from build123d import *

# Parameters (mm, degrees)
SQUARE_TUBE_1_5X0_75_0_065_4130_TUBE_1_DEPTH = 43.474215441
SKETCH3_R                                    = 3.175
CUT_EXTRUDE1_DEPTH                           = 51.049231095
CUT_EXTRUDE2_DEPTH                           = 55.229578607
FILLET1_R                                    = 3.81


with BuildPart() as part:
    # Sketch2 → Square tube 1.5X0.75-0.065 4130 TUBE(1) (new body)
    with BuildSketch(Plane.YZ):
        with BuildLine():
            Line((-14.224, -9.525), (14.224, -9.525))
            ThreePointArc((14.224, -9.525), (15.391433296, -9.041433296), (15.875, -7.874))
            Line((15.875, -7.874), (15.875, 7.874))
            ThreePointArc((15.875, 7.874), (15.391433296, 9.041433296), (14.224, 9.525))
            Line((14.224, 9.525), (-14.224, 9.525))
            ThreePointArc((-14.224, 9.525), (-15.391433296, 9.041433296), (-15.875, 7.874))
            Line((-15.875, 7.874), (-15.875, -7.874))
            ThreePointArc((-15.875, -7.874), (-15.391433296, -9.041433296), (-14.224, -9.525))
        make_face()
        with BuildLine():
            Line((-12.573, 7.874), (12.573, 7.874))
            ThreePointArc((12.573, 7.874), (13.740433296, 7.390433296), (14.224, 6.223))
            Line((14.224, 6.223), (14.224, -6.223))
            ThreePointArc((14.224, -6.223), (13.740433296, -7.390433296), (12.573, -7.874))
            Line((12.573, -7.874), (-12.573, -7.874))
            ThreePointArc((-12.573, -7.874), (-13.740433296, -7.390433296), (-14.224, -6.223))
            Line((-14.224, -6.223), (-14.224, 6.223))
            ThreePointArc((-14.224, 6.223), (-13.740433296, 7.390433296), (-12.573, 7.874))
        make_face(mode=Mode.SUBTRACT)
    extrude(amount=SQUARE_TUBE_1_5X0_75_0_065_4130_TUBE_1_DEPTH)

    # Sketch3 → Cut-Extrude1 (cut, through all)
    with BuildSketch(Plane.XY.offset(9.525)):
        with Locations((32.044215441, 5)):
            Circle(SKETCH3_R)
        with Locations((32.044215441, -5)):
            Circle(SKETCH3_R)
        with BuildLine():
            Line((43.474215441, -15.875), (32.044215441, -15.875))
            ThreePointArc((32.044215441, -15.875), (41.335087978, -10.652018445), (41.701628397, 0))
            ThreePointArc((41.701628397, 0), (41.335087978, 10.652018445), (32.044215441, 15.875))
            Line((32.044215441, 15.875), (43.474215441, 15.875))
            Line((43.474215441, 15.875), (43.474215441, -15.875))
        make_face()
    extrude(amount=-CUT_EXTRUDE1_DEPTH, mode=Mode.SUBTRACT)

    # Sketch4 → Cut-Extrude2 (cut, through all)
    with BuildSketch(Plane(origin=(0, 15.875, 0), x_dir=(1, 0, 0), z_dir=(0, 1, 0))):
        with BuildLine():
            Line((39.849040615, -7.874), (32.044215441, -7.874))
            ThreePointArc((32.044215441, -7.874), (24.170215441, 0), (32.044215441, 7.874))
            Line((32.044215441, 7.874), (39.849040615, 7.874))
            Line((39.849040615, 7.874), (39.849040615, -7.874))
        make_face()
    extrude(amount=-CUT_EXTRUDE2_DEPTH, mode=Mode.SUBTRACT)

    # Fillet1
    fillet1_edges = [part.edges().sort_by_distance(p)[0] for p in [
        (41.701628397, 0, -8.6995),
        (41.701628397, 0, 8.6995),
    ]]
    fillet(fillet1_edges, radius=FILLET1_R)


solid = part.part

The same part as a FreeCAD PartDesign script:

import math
import FreeCAD as App
import Part
import Sketcher

V = App.Vector
Q = App.Units.Quantity


def edges_at(feature, points):
    """Names of the edges that pass closest to the given points."""
    edges = feature.Shape.Edges
    near = lambda p: min(range(len(edges)), key=lambda i: edges[i].distToShape(Part.Vertex(*p))[0])
    return sorted({f"Edge{near(p) + 1}" for p in points})

doc = App.newDocument("Part")
body = doc.addObject("PartDesign::Body", "Body")

# Sketch on YZ plane
sketch1 = body.newObject("Sketcher::SketchObject", "Sketch")
sketch1.AttachmentSupport = (doc.getObject("YZ_Plane"), [""])
sketch1.MapMode = "FlatFace"
sketch1.addGeometry([
    Part.LineSegment(V(-14.2, -9.5, 0), V(14.2, -9.5, 0)),  # 0
    Part.ArcOfCircle(Part.Circle(V(14.2, -7.9, 0), V(0, 0, 1), 1.7), math.radians(-90), math.radians(0)),  # 1
    Part.LineSegment(V(15.9, -7.9, 0), V(15.9, 7.9, 0)),  # 2
    Part.ArcOfCircle(Part.Circle(V(14.2, 7.9, 0), V(0, 0, 1), 1.7), math.radians(0), math.radians(90)),  # 3
    Part.LineSegment(V(14.2, 9.5, 0), V(-14.2, 9.5, 0)),  # 4
    Part.ArcOfCircle(Part.Circle(V(-14.2, 7.9, 0), V(0, 0, 1), 1.7), math.radians(90), math.radians(180)),  # 5
    Part.LineSegment(V(-15.9, 7.9, 0), V(-15.9, -7.9, 0)),  # 6
    Part.ArcOfCircle(Part.Circle(V(-14.2, -7.9, 0), V(0, 0, 1), 1.7), math.radians(180), math.radians(270)),  # 7
    Part.ArcOfCircle(Part.Circle(V(-12.6, 6.2, 0), V(0, 0, 1), 1.7), math.radians(90), math.radians(180)),  # 8
    Part.LineSegment(V(-12.6, 7.9, 0), V(12.6, 7.9, 0)),  # 9
    Part.ArcOfCircle(Part.Circle(V(12.6, 6.2, 0), V(0, 0, 1), 1.7), math.radians(0), math.radians(90)),  # 10
    Part.LineSegment(V(14.2, 6.2, 0), V(14.2, -6.2, 0)),  # 11
    Part.ArcOfCircle(Part.Circle(V(12.6, -6.2, 0), V(0, 0, 1), 1.7), math.radians(-90), math.radians(0)),  # 12
    Part.LineSegment(V(12.6, -7.9, 0), V(-12.6, -7.9, 0)),  # 13
    Part.ArcOfCircle(Part.Circle(V(-12.6, -6.2, 0), V(0, 0, 1), 1.7), math.radians(180), math.radians(270)),  # 14
    Part.LineSegment(V(-14.2, -6.2, 0), V(-14.2, 6.2, 0)),  # 15
], False)
sketch1.addConstraint([
    Sketcher.Constraint("Tangent", 0, 2, 1, 1),
    Sketcher.Constraint("Tangent", 1, 2, 2, 1),
    Sketcher.Constraint("Tangent", 2, 2, 3, 1),
    Sketcher.Constraint("Tangent", 3, 2, 4, 1),
    Sketcher.Constraint("Tangent", 4, 2, 5, 1),
    Sketcher.Constraint("Tangent", 5, 2, 6, 1),
    Sketcher.Constraint("Tangent", 6, 2, 7, 1),
    Sketcher.Constraint("Tangent", 7, 2, 0, 1),
    Sketcher.Constraint("Tangent", 8, 1, 9, 1),
    Sketcher.Constraint("Tangent", 9, 2, 10, 2),
    Sketcher.Constraint("Tangent", 10, 1, 11, 1),
    Sketcher.Constraint("Tangent", 11, 2, 12, 2),
    Sketcher.Constraint("Tangent", 12, 1, 13, 1),
    Sketcher.Constraint("Tangent", 13, 2, 14, 2),
    Sketcher.Constraint("Tangent", 14, 1, 15, 1),
    Sketcher.Constraint("Tangent", 15, 2, 8, 2),
    Sketcher.Constraint("Horizontal", 0),
    Sketcher.Constraint("Vertical", 2),
    Sketcher.Constraint("Horizontal", 4),
    Sketcher.Constraint("Vertical", 6),
    Sketcher.Constraint("Horizontal", 9),
    Sketcher.Constraint("Vertical", 11),
    Sketcher.Constraint("Horizontal", 13),
    Sketcher.Constraint("Vertical", 15),
    Sketcher.Constraint("Equal", 1, 3),
    Sketcher.Constraint("Equal", 3, 5),
    Sketcher.Constraint("Equal", 5, 7),
    Sketcher.Constraint("Equal", 7, 8),
    Sketcher.Constraint("Equal", 8, 10),
    Sketcher.Constraint("Equal", 10, 12),
    Sketcher.Constraint("Equal", 12, 14),
    Sketcher.Constraint("Symmetric", 1, 3, 5, 3, -1, 1),
    Sketcher.Constraint("Symmetric", 8, 3, 12, 3, -1, 1),
    Sketcher.Constraint("Horizontal", 5, 2, 8, 1),
    Sketcher.Constraint("Vertical", 3, 2, 10, 1),
    Sketcher.Constraint("Radius", 1, Q("0.065 in")),
    Sketcher.Constraint("DistanceX", 0, 1, 0, 2, Q("1.12 in")),
    Sketcher.Constraint("DistanceY", 2, 1, 2, 2, Q("0.62 in")),
])
pad1 = body.newObject("PartDesign::Pad", "Pad")
pad1.Profile = sketch1
pad1.Length = 43.474215

# Sketch on XY plane
sketch2 = body.newObject("Sketcher::SketchObject", "Sketch001")
sketch2.AttachmentSupport = (doc.getObject("XY_Plane"), [""])
sketch2.MapMode = "FlatFace"
sketch2.AttachmentOffset = App.Placement(V(0, 0, 0.375 * 25.4), App.Rotation())
sketch2.addGeometry([
    Part.Circle(V(32, 5, 0), V(0, 0, 1), 3.2),  # 0
    Part.Circle(V(32, -5, 0), V(0, 0, 1), 3.2),  # 1
    Part.LineSegment(V(32, -15.9, 0), V(43.5, -15.9, 0)),  # 2
    Part.LineSegment(V(43.5, -15.9, 0), V(43.5, 15.9, 0)),  # 3
    Part.LineSegment(V(43.5, 15.9, 0), V(32, 15.9, 0)),  # 4
    Part.ArcOfCircle(Part.Circle(V(32, 5, 0), V(0, 0, 1), 10.9), math.radians(-27), math.radians(90)),  # 5
    Part.ArcOfCircle(Part.Circle(V(32, -5, 0), V(0, 0, 1), 10.9), math.radians(-90), math.radians(27)),  # 6
], False)
sketch2.addConstraint([
    Sketcher.Constraint("Coincident", 2, 2, 3, 1),
    Sketcher.Constraint("Coincident", 3, 2, 4, 1),
    Sketcher.Constraint("Tangent", 4, 2, 5, 2),
    Sketcher.Constraint("Coincident", 5, 1, 6, 2),
    Sketcher.Constraint("Tangent", 6, 1, 2, 1),
    Sketcher.Constraint("Horizontal", 2),
    Sketcher.Constraint("Vertical", 3),
    Sketcher.Constraint("Horizontal", 4),
    Sketcher.Constraint("Coincident", 5, 3, 0, 3),
    Sketcher.Constraint("Coincident", 6, 3, 1, 3),
    Sketcher.Constraint("Equal", 0, 1),
    Sketcher.Constraint("Equal", 5, 6),
    Sketcher.Constraint("Symmetric", 0, 3, 1, 3, -1),
    Sketcher.Constraint("Diameter", 0, Q("0.25 in")),
    Sketcher.Constraint("DistanceX", 2, 1, 2, 2, Q("0.45 in")),
    Sketcher.Constraint("DistanceY", 3, 1, 3, 2, Q("1.25 in")),
    Sketcher.Constraint("Radius", 5, Q("10.875 mm")),
    Sketcher.Constraint("DistanceX", -1, 1, 5, 1, Q("41.701628 mm")),
])
pocket1 = body.newObject("PartDesign::Pocket", "Pocket")
pocket1.Profile = sketch2
pocket1.Type = "ThroughAll"

# Sketch on XZ plane
sketch3 = body.newObject("Sketcher::SketchObject", "Sketch002")
sketch3.AttachmentSupport = (doc.getObject("XZ_Plane"), [""])
sketch3.MapMode = "FlatFace"
sketch3.AttachmentOffset = App.Placement(V(0, 0, -0.625 * 25.4), App.Rotation())
sketch3.addGeometry([
    Part.LineSegment(V(32, 8, 0), V(40, 8, 0)),
    Part.LineSegment(V(40, 8, 0), V(40, -8, 0)),
    Part.LineSegment(V(40, -8, 0), V(32, -8, 0)),
    Part.ArcOfCircle(Part.Circle(V(32, 0, 0), V(0, 0, 1), 8), math.radians(90), math.radians(270)),
], False)
sketch3.addConstraint([
    Sketcher.Constraint("Coincident", 0, 2, 1, 1),
    Sketcher.Constraint("Coincident", 1, 2, 2, 1),
    Sketcher.Constraint("Tangent", 2, 2, 3, 2),
    Sketcher.Constraint("Tangent", 3, 1, 0, 1),
    Sketcher.Constraint("Horizontal", 0),
    Sketcher.Constraint("Vertical", 1),
    Sketcher.Constraint("Horizontal", 2),
    Sketcher.Constraint("PointOnObject", 3, 3, -1),
    Sketcher.Constraint("Radius", 3, Q("0.31 in")),
    Sketcher.Constraint("DistanceX", 0, 1, 0, 2, Q("7.804825 mm")),
    Sketcher.Constraint("DistanceX", -1, 1, 0, 2, Q("39.849041 mm")),
])
pocket2 = body.newObject("PartDesign::Pocket", "Pocket001")
pocket2.Profile = sketch3
pocket2.Type = "ThroughAll"
pocket2.Reversed = True
doc.recompute()

fillet = body.newObject("PartDesign::Fillet", "Fillet")
fillet.Base = (pocket2, edges_at(pocket2, [(41.702, 0, -8.7), (41.702, 0, 8.7)]))
fillet.Radius = Q("0.15 in")

doc.recompute()
